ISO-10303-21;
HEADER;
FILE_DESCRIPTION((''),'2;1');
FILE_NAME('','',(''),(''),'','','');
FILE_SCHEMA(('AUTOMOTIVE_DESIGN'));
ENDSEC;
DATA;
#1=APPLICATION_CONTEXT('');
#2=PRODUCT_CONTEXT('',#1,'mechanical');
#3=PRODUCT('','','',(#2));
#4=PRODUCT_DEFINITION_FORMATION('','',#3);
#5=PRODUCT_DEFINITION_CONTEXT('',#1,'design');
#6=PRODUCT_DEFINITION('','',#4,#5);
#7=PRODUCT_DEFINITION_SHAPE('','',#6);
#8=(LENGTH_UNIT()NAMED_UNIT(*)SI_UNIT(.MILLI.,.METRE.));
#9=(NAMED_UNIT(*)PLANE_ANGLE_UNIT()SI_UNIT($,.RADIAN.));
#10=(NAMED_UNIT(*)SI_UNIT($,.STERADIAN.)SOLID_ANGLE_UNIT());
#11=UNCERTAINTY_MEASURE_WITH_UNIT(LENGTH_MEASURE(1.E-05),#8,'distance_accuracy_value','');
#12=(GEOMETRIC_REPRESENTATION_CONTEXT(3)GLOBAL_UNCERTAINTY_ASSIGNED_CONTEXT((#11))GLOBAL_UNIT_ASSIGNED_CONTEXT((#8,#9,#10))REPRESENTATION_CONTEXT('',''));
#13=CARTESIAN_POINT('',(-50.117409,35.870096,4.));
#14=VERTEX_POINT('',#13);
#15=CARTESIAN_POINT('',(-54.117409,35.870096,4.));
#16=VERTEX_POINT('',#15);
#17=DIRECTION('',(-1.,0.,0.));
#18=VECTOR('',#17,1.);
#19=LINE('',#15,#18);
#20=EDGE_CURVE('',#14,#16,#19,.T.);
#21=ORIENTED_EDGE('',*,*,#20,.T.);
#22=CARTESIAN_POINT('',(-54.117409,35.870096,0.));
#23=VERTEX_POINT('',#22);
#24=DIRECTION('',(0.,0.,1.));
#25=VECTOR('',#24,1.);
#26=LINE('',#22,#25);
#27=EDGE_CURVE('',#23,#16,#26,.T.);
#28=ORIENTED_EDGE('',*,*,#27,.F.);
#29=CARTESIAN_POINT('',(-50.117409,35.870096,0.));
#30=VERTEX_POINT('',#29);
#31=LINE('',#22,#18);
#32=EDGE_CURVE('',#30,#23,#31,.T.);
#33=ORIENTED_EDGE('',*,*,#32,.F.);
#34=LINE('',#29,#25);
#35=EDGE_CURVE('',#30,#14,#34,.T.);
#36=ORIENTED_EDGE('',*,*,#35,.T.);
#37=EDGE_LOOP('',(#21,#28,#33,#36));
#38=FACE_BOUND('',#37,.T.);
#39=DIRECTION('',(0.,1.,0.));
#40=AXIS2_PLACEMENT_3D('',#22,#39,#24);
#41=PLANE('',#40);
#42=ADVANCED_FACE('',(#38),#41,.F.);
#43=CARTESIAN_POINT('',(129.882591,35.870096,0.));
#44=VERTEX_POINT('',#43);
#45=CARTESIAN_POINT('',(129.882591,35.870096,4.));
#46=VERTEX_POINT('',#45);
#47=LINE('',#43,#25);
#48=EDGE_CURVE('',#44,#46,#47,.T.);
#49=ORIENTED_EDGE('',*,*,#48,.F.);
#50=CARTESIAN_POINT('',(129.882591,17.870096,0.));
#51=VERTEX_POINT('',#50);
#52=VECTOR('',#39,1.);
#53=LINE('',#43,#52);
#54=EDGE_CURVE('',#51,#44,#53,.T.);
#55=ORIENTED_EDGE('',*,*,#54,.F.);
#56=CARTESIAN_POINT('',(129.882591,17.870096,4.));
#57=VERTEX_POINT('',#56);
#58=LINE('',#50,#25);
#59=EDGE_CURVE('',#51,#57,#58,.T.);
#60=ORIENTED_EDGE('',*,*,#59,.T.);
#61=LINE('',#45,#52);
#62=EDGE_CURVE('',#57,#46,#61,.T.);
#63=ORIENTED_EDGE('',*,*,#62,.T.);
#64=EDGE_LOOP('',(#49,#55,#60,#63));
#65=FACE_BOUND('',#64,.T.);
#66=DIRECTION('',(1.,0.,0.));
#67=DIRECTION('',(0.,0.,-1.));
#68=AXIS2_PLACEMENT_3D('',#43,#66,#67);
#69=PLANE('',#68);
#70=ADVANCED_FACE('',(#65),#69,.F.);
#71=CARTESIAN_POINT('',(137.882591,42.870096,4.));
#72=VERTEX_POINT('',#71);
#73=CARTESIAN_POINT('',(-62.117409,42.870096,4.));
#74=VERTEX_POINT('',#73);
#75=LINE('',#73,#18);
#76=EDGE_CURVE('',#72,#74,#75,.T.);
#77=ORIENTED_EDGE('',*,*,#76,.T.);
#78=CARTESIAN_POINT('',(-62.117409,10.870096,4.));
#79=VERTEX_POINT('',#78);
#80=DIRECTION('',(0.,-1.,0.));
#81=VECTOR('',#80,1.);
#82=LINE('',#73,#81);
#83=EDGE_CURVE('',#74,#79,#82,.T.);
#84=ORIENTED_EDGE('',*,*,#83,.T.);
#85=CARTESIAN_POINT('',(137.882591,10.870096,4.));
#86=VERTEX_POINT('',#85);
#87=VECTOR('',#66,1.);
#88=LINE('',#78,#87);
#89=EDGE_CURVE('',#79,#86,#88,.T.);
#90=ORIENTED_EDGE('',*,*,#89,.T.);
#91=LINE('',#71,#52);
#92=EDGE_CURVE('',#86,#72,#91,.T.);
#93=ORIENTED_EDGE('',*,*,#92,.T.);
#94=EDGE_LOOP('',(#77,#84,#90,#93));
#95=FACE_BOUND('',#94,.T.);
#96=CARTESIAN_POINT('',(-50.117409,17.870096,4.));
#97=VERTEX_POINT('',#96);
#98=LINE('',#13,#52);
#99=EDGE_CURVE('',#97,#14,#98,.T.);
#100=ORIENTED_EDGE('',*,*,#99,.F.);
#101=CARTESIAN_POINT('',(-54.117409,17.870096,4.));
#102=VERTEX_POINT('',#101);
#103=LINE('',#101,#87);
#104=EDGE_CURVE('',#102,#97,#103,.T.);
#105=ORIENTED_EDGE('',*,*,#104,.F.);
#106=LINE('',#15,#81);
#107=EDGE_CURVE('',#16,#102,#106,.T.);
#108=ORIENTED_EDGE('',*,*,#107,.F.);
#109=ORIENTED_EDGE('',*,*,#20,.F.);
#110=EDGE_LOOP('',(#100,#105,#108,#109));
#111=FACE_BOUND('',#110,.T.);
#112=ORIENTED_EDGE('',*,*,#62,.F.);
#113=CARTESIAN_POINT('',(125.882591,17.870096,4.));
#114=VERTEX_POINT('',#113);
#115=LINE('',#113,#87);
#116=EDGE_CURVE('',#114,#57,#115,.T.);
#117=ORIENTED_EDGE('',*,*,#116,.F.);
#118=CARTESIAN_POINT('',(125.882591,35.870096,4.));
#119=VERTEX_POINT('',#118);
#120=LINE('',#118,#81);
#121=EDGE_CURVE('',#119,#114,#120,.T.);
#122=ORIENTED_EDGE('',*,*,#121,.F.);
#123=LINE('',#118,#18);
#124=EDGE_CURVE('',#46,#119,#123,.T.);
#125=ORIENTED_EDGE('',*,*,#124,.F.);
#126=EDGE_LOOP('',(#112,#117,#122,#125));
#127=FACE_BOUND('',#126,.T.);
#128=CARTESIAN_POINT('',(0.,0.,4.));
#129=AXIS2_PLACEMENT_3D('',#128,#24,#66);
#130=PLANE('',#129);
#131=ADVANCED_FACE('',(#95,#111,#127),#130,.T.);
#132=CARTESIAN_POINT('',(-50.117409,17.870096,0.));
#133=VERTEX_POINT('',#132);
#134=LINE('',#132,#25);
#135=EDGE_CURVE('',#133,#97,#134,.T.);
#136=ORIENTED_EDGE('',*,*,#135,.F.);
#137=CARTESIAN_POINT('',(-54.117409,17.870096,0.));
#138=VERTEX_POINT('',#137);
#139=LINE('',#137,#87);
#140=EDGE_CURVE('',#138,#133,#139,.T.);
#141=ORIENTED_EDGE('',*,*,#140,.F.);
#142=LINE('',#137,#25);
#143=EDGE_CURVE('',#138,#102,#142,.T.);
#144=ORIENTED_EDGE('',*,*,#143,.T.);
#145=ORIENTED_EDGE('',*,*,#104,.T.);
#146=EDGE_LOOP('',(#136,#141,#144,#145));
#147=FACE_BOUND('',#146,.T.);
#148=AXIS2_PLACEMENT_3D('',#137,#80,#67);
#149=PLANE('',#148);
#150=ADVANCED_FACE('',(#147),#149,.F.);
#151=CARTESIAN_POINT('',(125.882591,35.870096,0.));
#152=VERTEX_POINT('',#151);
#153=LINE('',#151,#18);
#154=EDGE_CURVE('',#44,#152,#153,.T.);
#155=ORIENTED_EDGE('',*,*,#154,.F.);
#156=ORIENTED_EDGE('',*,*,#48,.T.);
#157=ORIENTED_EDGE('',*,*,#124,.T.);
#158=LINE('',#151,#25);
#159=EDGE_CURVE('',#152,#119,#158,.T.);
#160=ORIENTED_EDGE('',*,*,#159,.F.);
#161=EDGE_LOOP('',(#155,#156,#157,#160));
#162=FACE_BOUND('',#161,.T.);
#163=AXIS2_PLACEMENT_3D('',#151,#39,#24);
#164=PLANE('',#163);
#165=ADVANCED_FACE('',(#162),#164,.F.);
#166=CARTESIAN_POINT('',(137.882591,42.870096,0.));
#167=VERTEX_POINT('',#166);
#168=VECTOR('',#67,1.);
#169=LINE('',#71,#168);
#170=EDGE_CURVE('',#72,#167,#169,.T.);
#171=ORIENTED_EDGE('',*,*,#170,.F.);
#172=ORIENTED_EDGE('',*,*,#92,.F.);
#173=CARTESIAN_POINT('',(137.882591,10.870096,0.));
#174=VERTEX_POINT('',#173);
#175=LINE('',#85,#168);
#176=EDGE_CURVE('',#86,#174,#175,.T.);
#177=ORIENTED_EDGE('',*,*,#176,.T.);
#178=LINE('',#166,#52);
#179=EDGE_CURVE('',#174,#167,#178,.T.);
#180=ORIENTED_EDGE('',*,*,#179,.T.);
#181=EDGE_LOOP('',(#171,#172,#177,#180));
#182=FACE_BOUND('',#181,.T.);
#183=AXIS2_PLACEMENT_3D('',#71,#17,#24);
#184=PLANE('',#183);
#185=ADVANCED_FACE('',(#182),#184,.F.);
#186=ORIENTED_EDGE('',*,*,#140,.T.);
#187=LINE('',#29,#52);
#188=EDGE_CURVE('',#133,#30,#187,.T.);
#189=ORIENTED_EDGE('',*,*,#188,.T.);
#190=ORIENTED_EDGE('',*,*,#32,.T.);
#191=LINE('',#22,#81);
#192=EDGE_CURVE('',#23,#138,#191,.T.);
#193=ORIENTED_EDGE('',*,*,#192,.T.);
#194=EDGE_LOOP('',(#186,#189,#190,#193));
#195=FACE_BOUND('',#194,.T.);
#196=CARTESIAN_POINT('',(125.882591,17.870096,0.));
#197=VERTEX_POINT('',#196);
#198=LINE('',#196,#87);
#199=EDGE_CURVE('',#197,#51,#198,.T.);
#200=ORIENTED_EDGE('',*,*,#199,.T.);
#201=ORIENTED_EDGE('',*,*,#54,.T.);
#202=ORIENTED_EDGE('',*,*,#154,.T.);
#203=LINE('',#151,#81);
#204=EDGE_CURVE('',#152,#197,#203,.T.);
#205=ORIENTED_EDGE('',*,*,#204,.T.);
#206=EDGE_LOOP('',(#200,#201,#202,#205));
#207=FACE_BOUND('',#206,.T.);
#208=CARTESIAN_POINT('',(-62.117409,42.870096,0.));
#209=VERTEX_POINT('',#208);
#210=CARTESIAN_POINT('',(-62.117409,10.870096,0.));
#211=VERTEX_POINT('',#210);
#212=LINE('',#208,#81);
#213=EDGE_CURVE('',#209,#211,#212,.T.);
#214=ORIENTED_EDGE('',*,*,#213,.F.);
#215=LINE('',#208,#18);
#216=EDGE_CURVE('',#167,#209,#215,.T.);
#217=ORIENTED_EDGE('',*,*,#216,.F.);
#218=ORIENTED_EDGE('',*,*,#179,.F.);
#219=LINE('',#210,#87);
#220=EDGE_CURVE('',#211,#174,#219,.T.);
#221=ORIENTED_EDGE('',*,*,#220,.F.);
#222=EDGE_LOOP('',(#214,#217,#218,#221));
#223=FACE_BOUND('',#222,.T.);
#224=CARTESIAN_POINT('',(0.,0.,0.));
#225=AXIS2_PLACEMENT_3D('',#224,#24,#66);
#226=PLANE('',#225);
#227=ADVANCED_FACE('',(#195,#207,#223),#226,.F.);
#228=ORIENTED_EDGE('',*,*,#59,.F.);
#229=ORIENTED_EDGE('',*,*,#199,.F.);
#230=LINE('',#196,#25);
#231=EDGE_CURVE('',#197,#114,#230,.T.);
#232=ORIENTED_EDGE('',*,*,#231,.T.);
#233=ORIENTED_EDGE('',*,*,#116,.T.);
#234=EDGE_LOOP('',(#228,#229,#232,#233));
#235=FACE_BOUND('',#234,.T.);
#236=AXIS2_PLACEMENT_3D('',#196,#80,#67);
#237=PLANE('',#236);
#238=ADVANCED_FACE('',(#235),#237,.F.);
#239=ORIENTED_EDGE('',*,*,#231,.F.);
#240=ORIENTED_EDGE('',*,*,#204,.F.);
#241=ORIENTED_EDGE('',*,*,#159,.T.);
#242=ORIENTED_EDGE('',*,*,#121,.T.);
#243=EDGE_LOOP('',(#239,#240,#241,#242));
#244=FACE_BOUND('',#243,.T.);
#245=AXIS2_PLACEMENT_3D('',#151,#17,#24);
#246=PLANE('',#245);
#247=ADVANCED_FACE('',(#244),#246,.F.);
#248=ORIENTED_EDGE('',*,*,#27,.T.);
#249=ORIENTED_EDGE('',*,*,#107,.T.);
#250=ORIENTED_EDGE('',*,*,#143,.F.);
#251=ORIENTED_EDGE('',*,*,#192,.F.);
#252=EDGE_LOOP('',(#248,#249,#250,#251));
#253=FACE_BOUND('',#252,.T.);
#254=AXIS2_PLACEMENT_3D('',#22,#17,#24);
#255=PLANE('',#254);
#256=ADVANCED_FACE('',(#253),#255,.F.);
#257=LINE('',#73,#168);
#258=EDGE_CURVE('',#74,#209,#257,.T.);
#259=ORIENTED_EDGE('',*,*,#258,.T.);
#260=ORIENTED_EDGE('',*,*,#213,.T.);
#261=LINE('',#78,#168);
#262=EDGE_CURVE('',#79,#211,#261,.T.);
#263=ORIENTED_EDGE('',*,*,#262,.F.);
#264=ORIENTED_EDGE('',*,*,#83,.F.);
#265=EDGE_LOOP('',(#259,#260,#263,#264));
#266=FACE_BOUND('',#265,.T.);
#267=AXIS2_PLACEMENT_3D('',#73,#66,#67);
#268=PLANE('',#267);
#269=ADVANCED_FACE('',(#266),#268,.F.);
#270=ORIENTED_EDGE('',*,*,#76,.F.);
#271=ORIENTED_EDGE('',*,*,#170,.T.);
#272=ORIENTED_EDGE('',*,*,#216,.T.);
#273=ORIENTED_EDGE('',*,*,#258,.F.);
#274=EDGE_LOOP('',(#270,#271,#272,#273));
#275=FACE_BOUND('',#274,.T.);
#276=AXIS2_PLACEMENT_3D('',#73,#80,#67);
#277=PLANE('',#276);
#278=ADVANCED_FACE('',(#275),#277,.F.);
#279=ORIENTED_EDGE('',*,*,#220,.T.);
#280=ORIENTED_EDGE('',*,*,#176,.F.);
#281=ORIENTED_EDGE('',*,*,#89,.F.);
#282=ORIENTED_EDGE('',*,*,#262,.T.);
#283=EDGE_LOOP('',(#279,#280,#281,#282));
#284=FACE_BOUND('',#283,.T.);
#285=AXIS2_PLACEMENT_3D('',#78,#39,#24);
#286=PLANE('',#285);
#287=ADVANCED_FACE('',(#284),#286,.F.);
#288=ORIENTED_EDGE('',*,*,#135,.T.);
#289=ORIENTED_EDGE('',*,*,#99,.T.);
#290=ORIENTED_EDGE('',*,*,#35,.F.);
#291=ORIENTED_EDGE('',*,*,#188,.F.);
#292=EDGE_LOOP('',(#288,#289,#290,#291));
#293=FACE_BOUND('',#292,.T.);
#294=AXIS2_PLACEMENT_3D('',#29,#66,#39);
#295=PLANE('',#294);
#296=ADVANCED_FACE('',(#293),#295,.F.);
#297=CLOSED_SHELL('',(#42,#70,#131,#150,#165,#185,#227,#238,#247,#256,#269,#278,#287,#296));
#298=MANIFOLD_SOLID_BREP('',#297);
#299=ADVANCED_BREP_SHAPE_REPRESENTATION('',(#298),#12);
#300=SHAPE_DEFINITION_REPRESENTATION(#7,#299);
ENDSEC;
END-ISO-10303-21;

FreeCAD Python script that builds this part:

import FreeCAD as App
import Part
import Sketcher
from FreeCAD import Vector


def add_polygon(sketch, points):
    """Adds a closed chain of lines whose ends are joined by coincident constraints."""
    first, n = sketch.GeometryCount, len(points)
    for a, b in zip(points, points[1:] + points[:1]):
        sketch.addGeometry(Part.LineSegment(App.Vector(*a, 0), App.Vector(*b, 0)), False)
    for i in range(n):
        sketch.addConstraint(Sketcher.Constraint("Coincident", first + i, 2, first + (i + 1) % n, 1))

doc = App.newDocument("Part")
body = doc.addObject("PartDesign::Body", "Body")

# Sketch on XY plane
sketch1 = body.newObject("Sketcher::SketchObject", "Sketch")
sketch1.AttachmentSupport = (doc.getObject("XY_Plane"), [""])
sketch1.MapMode = "FlatFace"
add_polygon(sketch1, [(-62, 43), (-62, 11), (138, 11), (138, 43)])  # lines 0-3
sketch1.addConstraint([
    Sketcher.Constraint("Vertical", 0),
    Sketcher.Constraint("Horizontal", 1),
    Sketcher.Constraint("Vertical", 2),
    Sketcher.Constraint("Horizontal", 3),
    Sketcher.Constraint("DistanceX", 1, 1, 1, 2, 200.0),
    Sketcher.Constraint("DistanceY", 0, 2, 0, 1, 32.0),
    Sketcher.Constraint("DistanceX", 0, 2, -1, 1, 62.117409),
    Sketcher.Constraint("DistanceY", -1, 1, 0, 2, 10.870096),
])
pad1 = body.newObject("PartDesign::Pad", "Pad")
pad1.Profile = sketch1
pad1.Length = 4

# Sketch on XY plane
sketch2 = body.newObject("Sketcher::SketchObject", "Sketch001")
sketch2.AttachmentSupport = (doc.getObject("XY_Plane"), [""])
sketch2.MapMode = "FlatFace"
sketch2.AttachmentOffset = App.Placement(Vector(0, 0, 4), App.Rotation())
add_polygon(sketch2, [(-54.1, 35.9), (-54.1, 17.9), (-50.1, 17.9), (-50.1, 35.9)])  # lines 0-3
add_polygon(sketch2, [(125.9, 35.9), (125.9, 17.9), (129.9, 17.9), (129.9, 35.9)])  # lines 4-7
sketch2.addConstraint([
    Sketcher.Constraint("Vertical", 0),
    Sketcher.Constraint("Horizontal", 1),
    Sketcher.Constraint("Vertical", 2),
    Sketcher.Constraint("Horizontal", 3),
    Sketcher.Constraint("Vertical", 4),
    Sketcher.Constraint("Horizontal", 5),
    Sketcher.Constraint("Vertical", 6),
    Sketcher.Constraint("Horizontal", 7),
    Sketcher.Constraint("Horizontal", 1, 2, 4, 2),
    Sketcher.Constraint("Horizontal", 3, 2, 6, 2),
    Sketcher.Constraint("Equal", 3, 5),
    Sketcher.Constraint("DistanceX", 1, 1, 1, 2, 4.0),
    Sketcher.Constraint("DistanceY", 0, 2, 0, 1, 18.0),
    Sketcher.Constraint("DistanceX", 1, 2, 4, 2, 176.0),
    Sketcher.Constraint("DistanceX", 0, 2, -1, 1, 54.117409),
    Sketcher.Constraint("DistanceY", -1, 1, 0, 2, 17.870096),
])
pocket1 = body.newObject("PartDesign::Pocket", "Pocket")
pocket1.Profile = sketch2
pocket1.Length = 4

doc.recompute()
